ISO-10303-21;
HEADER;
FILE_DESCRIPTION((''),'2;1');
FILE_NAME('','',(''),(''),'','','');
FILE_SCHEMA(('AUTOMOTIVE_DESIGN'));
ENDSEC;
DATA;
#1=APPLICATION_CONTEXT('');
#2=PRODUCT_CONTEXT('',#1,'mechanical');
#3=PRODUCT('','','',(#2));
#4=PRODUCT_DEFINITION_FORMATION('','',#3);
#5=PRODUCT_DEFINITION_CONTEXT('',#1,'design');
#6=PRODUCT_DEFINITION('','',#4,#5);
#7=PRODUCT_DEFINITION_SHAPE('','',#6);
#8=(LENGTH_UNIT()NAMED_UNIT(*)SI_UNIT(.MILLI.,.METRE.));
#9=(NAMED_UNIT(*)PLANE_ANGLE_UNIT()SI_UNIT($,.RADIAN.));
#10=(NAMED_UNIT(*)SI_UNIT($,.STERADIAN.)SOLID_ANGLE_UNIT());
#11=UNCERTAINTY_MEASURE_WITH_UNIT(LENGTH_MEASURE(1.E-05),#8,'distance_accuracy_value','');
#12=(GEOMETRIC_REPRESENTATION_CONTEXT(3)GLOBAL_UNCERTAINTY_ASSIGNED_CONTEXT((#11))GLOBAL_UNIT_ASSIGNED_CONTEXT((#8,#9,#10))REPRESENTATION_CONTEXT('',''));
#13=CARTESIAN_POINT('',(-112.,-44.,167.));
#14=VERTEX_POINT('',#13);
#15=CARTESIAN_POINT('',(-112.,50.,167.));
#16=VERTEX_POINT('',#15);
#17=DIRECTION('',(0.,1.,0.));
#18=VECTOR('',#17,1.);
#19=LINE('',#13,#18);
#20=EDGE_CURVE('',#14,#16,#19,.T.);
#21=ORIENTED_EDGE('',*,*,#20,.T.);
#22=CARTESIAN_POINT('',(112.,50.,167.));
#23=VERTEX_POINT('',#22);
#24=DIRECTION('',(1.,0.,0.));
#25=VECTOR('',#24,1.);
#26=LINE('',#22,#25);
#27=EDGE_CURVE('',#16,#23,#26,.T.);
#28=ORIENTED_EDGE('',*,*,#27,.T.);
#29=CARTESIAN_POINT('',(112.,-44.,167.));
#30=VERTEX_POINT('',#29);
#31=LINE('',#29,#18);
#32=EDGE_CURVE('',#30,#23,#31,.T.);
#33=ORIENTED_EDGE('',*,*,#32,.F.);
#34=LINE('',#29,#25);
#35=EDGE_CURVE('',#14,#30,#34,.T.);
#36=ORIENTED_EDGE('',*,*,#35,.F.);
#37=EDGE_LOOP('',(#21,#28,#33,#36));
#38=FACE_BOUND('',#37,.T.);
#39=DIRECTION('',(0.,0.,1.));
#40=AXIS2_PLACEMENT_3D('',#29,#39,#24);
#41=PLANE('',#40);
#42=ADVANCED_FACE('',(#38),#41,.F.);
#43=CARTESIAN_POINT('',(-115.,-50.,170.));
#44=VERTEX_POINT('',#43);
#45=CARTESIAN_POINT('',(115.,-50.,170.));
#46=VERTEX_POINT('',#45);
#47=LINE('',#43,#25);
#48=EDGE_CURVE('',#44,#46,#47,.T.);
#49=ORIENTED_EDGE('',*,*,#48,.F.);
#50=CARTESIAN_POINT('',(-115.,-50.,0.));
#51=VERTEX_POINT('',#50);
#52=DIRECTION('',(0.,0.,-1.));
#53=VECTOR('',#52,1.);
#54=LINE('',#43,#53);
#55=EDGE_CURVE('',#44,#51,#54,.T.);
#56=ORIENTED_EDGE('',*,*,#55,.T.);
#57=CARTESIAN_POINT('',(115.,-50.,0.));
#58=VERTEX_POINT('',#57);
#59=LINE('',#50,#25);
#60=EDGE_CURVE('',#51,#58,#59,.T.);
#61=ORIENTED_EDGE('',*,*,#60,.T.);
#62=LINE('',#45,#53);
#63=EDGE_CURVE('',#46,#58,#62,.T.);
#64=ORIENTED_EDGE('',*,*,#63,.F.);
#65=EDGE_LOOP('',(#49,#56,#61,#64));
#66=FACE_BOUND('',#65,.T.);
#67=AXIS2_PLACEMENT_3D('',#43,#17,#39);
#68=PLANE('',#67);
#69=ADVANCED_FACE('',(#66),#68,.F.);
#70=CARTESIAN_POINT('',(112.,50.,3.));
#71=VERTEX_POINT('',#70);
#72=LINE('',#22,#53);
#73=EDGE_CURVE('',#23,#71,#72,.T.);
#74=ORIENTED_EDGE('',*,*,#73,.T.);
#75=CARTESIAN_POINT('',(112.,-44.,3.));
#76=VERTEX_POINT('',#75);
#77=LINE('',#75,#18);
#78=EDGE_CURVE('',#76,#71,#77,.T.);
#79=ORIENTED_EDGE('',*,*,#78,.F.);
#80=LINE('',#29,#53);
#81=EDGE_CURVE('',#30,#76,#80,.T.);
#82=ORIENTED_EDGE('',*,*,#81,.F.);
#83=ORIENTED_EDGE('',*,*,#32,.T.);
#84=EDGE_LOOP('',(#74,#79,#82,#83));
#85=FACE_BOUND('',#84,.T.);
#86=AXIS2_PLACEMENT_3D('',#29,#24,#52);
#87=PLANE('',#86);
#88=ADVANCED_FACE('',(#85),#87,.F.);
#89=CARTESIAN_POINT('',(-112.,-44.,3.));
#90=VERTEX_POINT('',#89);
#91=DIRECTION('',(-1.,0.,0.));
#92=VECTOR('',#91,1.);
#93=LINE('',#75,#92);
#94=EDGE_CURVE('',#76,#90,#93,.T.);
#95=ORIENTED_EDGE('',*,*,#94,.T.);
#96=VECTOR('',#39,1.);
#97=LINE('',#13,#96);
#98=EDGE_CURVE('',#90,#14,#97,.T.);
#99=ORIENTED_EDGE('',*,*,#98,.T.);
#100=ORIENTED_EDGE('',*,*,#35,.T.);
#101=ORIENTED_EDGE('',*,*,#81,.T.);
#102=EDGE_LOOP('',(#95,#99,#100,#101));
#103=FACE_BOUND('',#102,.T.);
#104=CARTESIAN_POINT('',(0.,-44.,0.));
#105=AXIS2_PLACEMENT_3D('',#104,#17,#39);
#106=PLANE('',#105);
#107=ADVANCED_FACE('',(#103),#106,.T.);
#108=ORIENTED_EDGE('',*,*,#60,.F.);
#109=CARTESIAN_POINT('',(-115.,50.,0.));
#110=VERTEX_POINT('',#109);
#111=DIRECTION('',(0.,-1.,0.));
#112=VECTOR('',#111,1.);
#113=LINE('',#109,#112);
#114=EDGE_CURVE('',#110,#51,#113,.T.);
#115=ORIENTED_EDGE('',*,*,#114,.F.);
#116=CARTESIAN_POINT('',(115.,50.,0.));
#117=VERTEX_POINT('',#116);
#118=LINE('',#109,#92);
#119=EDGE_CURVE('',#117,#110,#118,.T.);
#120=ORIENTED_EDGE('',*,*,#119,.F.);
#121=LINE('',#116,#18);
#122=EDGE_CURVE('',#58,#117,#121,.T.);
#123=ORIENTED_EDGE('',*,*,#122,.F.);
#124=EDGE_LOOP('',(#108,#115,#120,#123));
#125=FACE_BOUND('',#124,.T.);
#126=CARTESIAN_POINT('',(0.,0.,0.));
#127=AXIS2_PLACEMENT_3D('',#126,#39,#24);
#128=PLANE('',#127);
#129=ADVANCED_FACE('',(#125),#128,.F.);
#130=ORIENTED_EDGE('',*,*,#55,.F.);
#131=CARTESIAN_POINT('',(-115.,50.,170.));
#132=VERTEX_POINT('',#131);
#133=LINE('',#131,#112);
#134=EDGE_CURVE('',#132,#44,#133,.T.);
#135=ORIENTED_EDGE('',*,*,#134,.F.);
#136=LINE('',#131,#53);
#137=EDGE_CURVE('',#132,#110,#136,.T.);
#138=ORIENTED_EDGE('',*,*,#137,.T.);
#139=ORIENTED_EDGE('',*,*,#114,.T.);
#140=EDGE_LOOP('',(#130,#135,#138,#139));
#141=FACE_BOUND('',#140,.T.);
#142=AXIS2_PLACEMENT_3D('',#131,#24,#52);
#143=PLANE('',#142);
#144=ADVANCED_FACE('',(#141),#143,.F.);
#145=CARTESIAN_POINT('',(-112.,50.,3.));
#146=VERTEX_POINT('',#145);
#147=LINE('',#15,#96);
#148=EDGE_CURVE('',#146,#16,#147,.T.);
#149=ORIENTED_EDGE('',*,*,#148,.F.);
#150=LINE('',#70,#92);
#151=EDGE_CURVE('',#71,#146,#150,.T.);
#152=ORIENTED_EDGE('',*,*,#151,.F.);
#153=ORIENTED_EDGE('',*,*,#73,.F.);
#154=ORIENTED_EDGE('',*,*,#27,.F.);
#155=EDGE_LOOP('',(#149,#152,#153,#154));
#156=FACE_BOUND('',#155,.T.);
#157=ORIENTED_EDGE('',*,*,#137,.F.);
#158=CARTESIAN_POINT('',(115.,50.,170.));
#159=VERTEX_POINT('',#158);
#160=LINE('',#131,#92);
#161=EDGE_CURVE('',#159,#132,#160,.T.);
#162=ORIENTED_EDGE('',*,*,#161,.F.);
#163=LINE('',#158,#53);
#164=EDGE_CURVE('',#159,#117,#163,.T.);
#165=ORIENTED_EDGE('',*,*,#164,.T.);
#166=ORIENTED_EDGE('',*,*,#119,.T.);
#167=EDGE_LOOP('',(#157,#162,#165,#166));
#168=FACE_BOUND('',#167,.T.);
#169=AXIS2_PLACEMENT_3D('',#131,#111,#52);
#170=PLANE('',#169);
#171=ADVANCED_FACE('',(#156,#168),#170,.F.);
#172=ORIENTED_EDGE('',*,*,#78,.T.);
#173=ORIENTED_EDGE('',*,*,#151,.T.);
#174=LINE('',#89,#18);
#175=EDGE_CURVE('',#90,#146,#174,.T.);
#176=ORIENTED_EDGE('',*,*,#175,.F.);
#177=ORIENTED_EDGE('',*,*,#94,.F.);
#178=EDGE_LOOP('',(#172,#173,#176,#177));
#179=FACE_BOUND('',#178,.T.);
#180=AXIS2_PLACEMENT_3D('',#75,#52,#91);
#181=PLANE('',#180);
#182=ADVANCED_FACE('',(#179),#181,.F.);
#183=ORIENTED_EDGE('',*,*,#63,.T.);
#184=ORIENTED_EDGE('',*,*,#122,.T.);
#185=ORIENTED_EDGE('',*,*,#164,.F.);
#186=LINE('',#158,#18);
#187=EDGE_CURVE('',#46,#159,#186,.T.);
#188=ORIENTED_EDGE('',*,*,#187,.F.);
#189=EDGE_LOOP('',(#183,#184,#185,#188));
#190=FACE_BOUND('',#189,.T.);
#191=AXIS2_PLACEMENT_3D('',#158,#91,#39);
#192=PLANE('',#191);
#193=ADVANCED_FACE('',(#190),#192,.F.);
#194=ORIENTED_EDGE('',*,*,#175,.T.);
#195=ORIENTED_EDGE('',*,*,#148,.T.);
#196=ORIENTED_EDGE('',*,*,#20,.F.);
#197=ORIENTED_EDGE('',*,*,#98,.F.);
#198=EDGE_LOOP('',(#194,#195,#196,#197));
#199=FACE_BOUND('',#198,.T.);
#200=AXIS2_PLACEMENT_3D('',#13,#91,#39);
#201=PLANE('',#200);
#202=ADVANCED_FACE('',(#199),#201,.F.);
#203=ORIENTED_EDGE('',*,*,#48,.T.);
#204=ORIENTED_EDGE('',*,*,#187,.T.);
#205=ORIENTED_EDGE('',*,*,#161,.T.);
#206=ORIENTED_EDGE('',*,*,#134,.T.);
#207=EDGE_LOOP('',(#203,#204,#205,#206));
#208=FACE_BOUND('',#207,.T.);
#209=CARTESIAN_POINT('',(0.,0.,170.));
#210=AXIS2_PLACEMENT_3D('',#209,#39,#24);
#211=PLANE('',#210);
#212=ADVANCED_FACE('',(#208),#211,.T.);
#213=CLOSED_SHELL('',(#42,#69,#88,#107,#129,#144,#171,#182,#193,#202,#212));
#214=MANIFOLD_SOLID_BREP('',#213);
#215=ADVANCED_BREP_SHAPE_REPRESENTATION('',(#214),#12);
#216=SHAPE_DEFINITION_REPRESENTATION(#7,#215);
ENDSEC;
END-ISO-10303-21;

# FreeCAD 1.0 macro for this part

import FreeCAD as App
import Part
import Sketcher
from FreeCAD import Vector
Q = App.Units.Quantity


def add_polygon(sketch, points):
    """Adds a closed chain of lines whose ends are joined by coincident constraints."""
    first, n = sketch.GeometryCount, len(points)
    for a, b in zip(points, points[1:] + points[:1]):
        sketch.addGeometry(Part.LineSegment(App.Vector(*a, 0), App.Vector(*b, 0)), False)
    for i in range(n):
        sketch.addConstraint(Sketcher.Constraint("Coincident", first + i, 2, first + (i + 1) % n, 1))

doc = App.newDocument("Part")
body = doc.addObject("PartDesign::Body", "Body")

# Sketch on XY plane
sketch1 = doc.addObject("Sketcher::SketchObject", "Sketch")
body.addObject(sketch1)
sketch1.AttachmentSupport = (doc.XY_Plane, [""])
sketch1.MapMode = "FlatFace"
add_polygon(sketch1, [(-115, 50), (-115, -50), (115, -50), (115, 50)])  # lines 0-3
sketch1.addConstraint([
    Sketcher.Constraint("Vertical", 0),
    Sketcher.Constraint("Horizontal", 1),
    Sketcher.Constraint("Vertical", 2),
    Sketcher.Constraint("Horizontal", 3),
    Sketcher.Constraint("Symmetric", 0, 2, 2, 2, -1, 1),
    Sketcher.Constraint("DistanceX", 1, 1, 1, 2, Q("230 mm")),
    Sketcher.Constraint("DistanceY", 0, 2, 0, 1, Q("100 mm")),
])
pad1 = doc.addObject("PartDesign::Pad", "Pad")
body.addObject(pad1)
pad1.Profile = sketch1
pad1.Length = 170

# Sketch on XZ plane
sketch2 = doc.addObject("Sketcher::SketchObject", "Sketch001")
body.addObject(sketch2)
sketch2.AttachmentSupport = (doc.XZ_Plane, [""])
sketch2.MapMode = "FlatFace"
sketch2.AttachmentOffset = App.Placement(Vector(0, 0, -50), App.Rotation())
add_polygon(sketch2, [(-112, 3), (-112, 167), (112, 167), (112, 3)])  # lines 0-3
sketch2.addConstraint([
    Sketcher.Constraint("Vertical", 0),
    Sketcher.Constraint("Horizontal", 1),
    Sketcher.Constraint("Vertical", 2),
    Sketcher.Constraint("Horizontal", 3),
    Sketcher.Constraint("DistanceX", 1, 1, 1, 2, Q("224 mm")),
    Sketcher.Constraint("DistanceY", 0, 1, 0, 2, Q("164 mm")),
    Sketcher.Constraint("DistanceX", 0, 2, -1, 1, Q("112 mm")),
    Sketcher.Constraint("DistanceY", -1, 1, 0, 2, Q("167 mm")),
])
pocket1 = doc.addObject("PartDesign::Pocket", "Pocket")
body.addObject(pocket1)
pocket1.Profile = sketch2
pocket1.Length = 94
pocket1.Reversed = True

doc.recompute()
